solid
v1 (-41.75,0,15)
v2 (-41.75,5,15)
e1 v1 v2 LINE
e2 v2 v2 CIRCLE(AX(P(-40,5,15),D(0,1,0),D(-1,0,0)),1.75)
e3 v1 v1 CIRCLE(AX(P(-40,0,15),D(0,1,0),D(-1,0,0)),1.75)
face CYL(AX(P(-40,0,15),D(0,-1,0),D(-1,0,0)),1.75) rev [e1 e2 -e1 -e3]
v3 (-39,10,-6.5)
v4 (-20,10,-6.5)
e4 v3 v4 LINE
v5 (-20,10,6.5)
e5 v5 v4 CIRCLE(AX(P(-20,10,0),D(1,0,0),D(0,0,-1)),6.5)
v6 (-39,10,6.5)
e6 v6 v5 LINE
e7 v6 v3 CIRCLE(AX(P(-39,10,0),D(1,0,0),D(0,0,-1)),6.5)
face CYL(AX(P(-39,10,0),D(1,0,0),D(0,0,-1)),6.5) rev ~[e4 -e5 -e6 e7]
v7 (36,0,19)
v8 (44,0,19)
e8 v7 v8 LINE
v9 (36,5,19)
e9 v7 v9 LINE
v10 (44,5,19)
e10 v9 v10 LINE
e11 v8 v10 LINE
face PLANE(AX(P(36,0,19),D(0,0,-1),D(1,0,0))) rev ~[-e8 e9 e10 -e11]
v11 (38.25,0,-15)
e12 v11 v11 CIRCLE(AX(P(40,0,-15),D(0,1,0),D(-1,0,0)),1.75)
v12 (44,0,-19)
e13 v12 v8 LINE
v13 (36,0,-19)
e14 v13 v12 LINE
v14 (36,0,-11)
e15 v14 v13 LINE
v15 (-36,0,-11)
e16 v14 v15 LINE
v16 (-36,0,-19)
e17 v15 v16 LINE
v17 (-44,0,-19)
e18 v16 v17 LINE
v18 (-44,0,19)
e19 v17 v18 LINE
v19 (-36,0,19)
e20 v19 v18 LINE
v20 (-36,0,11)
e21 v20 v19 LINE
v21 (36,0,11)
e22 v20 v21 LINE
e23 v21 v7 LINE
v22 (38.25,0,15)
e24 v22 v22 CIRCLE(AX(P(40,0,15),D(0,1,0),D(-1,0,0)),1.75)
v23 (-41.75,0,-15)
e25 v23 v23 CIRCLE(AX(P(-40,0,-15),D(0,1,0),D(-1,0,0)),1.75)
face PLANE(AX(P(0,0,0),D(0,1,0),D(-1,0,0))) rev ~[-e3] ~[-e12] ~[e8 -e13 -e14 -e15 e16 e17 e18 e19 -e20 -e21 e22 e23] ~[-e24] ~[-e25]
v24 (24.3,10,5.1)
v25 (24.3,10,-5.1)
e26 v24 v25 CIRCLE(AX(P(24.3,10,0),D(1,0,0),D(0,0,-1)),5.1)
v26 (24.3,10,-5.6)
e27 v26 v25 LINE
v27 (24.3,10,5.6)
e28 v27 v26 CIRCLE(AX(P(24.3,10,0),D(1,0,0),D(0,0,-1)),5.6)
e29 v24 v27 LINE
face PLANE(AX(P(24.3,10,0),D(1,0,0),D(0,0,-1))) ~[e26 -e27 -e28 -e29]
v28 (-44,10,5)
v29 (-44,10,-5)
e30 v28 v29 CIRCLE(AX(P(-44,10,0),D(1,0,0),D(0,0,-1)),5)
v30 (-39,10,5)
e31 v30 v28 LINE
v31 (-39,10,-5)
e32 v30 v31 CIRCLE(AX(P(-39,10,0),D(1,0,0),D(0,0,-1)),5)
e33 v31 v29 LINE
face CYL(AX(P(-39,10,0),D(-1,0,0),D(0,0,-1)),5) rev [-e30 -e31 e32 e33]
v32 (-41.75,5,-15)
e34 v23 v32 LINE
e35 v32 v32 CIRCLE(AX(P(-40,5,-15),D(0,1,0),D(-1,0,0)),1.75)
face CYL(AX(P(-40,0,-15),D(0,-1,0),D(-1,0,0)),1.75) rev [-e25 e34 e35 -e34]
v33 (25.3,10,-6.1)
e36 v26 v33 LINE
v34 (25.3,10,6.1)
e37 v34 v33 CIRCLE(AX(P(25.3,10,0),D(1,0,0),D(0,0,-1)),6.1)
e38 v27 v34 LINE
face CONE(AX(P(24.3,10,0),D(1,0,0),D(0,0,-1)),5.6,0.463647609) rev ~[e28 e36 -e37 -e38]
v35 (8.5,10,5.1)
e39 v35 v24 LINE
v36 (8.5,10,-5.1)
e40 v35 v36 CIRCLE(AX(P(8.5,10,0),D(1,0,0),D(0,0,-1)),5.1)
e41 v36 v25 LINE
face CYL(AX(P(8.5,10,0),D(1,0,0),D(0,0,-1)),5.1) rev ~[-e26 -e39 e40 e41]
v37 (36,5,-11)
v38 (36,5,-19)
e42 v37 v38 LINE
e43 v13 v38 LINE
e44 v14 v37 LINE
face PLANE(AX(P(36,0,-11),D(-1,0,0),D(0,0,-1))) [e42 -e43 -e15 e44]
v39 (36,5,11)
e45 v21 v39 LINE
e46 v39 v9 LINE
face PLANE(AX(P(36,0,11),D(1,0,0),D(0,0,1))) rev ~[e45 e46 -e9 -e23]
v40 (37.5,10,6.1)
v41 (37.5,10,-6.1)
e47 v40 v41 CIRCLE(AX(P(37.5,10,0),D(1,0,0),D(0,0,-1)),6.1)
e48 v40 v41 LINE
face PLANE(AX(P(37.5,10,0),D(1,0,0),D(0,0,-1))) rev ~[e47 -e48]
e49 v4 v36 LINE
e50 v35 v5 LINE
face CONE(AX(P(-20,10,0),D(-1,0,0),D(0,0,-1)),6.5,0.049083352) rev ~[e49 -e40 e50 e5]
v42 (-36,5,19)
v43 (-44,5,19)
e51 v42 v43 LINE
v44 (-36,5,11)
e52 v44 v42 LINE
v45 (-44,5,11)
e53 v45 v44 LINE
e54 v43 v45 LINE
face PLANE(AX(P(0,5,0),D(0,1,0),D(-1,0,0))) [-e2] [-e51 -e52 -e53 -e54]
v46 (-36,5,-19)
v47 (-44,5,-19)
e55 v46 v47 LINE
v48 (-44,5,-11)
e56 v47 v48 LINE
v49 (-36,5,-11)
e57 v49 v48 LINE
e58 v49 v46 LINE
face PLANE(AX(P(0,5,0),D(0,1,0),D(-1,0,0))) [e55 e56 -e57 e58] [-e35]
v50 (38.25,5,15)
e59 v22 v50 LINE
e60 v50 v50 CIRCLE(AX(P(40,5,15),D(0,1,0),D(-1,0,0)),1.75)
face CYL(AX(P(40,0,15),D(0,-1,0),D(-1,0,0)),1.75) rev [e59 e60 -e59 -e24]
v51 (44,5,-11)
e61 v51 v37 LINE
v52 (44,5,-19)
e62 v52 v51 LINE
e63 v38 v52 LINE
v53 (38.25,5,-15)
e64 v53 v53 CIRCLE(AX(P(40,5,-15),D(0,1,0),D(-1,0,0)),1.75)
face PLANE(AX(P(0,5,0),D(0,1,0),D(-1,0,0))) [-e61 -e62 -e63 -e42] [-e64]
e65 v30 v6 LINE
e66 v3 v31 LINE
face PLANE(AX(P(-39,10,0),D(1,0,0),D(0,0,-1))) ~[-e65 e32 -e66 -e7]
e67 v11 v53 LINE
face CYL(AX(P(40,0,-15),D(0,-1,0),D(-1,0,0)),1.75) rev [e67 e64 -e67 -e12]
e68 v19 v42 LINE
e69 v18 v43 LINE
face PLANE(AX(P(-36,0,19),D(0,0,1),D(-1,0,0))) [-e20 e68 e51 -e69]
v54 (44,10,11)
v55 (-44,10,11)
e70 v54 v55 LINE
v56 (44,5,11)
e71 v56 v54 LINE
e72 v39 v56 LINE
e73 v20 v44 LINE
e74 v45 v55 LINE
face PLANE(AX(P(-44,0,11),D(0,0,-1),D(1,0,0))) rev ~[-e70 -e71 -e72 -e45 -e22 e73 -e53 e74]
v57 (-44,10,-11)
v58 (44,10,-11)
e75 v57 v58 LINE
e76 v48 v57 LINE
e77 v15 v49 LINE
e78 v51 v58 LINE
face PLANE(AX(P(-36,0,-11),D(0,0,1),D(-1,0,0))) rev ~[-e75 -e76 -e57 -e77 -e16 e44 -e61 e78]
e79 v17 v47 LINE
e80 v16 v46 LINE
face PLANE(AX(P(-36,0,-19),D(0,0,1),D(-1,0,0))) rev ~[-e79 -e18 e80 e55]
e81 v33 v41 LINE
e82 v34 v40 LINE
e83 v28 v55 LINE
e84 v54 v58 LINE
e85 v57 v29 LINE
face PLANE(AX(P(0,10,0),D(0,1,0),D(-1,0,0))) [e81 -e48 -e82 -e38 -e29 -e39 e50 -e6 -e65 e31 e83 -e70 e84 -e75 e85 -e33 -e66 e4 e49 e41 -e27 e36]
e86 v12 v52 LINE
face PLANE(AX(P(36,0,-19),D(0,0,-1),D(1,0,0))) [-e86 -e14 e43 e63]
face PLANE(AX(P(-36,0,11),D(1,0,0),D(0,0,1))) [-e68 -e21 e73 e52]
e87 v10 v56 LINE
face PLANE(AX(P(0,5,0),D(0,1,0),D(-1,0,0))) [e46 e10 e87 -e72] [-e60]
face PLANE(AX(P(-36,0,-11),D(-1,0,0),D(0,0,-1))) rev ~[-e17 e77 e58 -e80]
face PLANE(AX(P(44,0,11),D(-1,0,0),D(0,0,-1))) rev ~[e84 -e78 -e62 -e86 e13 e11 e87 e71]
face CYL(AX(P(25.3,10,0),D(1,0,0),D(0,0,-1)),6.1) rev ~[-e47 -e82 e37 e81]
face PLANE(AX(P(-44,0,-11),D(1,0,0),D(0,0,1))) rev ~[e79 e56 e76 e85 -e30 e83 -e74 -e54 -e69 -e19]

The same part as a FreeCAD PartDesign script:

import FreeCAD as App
import Part
import Sketcher

doc = App.newDocument("Part")
body = doc.addObject("PartDesign::Body", "Body")

# Sketch on XZ plane
sketch1 = body.newObject("Sketcher::SketchObject", "Sketch")
sketch1.AttachmentSupport = (doc.getObject("XZ_Plane"), [""])
sketch1.MapMode = "FlatFace"
sketch1.addGeometry(Part.LineSegment(App.Vector(-44, -11, 0), App.Vector(-44, 11, 0)), False)
sketch1.addGeometry(Part.LineSegment(App.Vector(-44, 11, 0), App.Vector(44, 11, 0)), False)
sketch1.addGeometry(Part.LineSegment(App.Vector(44, 11, 0), App.Vector(44, -11, 0)), False)
sketch1.addGeometry(Part.LineSegment(App.Vector(44, -11, 0), App.Vector(-44, -11, 0)), False)
sketch1.addConstraint(Sketcher.Constraint("Coincident", 0, 2, 1, 1))
sketch1.addConstraint(Sketcher.Constraint("Coincident", 1, 2, 2, 1))
sketch1.addConstraint(Sketcher.Constraint("Coincident", 2, 2, 3, 1))
sketch1.addConstraint(Sketcher.Constraint("Coincident", 3, 2, 0, 1))
sketch1.addConstraint(Sketcher.Constraint("Vertical", 0))
sketch1.addConstraint(Sketcher.Constraint("Horizontal", 1))
sketch1.addConstraint(Sketcher.Constraint("Vertical", 2))
sketch1.addConstraint(Sketcher.Constraint("Horizontal", 3))
sketch1.addConstraint(Sketcher.Constraint("Symmetric", 0, 2, 2, 2, -1, 1))
sketch1.addConstraint(Sketcher.Constraint("DistanceX", 1, 1, 1, 2, 88.0))
sketch1.addConstraint(Sketcher.Constraint("DistanceY", 0, 1, 0, 2, 22.0))
pad1 = body.newObject("PartDesign::Pad", "Pad")
pad1.Profile = sketch1
pad1.Length = 10
pad1.Reversed = True

# Sketch on XZ plane
sketch2 = body.newObject("Sketcher::SketchObject", "Sketch001")
sketch2.AttachmentSupport = (doc.getObject("XZ_Plane"), [""])
sketch2.MapMode = "FlatFace"
sketch2.addGeometry(Part.LineSegment(App.Vector(-36, 11, 0), App.Vector(-44, 11, 0)), False)
sketch2.addGeometry(Part.LineSegment(App.Vector(-44, 11, 0), App.Vector(-44, 19, 0)), False)
sketch2.addGeometry(Part.LineSegment(App.Vector(-44, 19, 0), App.Vector(-36, 19, 0)), False)
sketch2.addGeometry(Part.LineSegment(App.Vector(-36, 19, 0), App.Vector(-36, 11, 0)), False)
sketch2.addGeometry(Part.Circle(App.Vector(-40, 15, 0), App.Vector(0, 0, 1), 1.8), False)
sketch2.addGeometry(Part.LineSegment(App.Vector(-44, -19, 0), App.Vector(-44, -11, 0)), False)
sketch2.addGeometry(Part.LineSegment(App.Vector(-44, -11, 0), App.Vector(-36, -11, 0)), False)
sketch2.addGeometry(Part.LineSegment(App.Vector(-36, -11, 0), App.Vector(-36, -19, 0)), False)
sketch2.addGeometry(Part.LineSegment(App.Vector(-36, -19, 0), App.Vector(-44, -19, 0)), False)
sketch2.addGeometry(Part.Circle(App.Vector(-40, -15, 0), App.Vector(0, 0, 1), 1.8), False)
sketch2.addGeometry(Part.LineSegment(App.Vector(44, 11, 0), App.Vector(36, 11, 0)), False)
sketch2.addGeometry(Part.LineSegment(App.Vector(36, 11, 0), App.Vector(36, 19, 0)), False)
sketch2.addGeometry(Part.LineSegment(App.Vector(36, 19, 0), App.Vector(44, 19, 0)), False)
sketch2.addGeometry(Part.LineSegment(App.Vector(44, 19, 0), App.Vector(44, 11, 0)), False)
sketch2.addGeometry(Part.Circle(App.Vector(40, 15, 0), App.Vector(0, 0, 1), 1.8), False)
sketch2.addGeometry(Part.LineSegment(App.Vector(36, -19, 0), App.Vector(36, -11, 0)), False)
sketch2.addGeometry(Part.LineSegment(App.Vector(36, -11, 0), App.Vector(44, -11, 0)), False)
sketch2.addGeometry(Part.LineSegment(App.Vector(44, -11, 0), App.Vector(44, -19, 0)), False)
sketch2.addGeometry(Part.LineSegment(App.Vector(44, -19, 0), App.Vector(36, -19, 0)), False)
sketch2.addGeometry(Part.Circle(App.Vector(40, -15, 0), App.Vector(0, 0, 1), 1.8), False)
sketch2.addConstraint(Sketcher.Constraint("Coincident", 0, 2, 1, 1))
sketch2.addConstraint(Sketcher.Constraint("Coincident", 1, 2, 2, 1))
sketch2.addConstraint(Sketcher.Constraint("Coincident", 2, 2, 3, 1))
sketch2.addConstraint(Sketcher.Constraint("Coincident", 3, 2, 0, 1))
sketch2.addConstraint(Sketcher.Constraint("Coincident", 5, 2, 6, 1))
sketch2.addConstraint(Sketcher.Constraint("Coincident", 6, 2, 7, 1))
sketch2.addConstraint(Sketcher.Constraint("Coincident", 7, 2, 8, 1))
sketch2.addConstraint(Sketcher.Constraint("Coincident", 8, 2, 5, 1))
sketch2.addConstraint(Sketcher.Constraint("Coincident", 10, 2, 11, 1))
sketch2.addConstraint(Sketcher.Constraint("Coincident", 11, 2, 12, 1))
sketch2.addConstraint(Sketcher.Constraint("Coincident", 12, 2, 13, 1))
sketch2.addConstraint(Sketcher.Constraint("Coincident", 13, 2, 10, 1))
sketch2.addConstraint(Sketcher.Constraint("Coincident", 15, 2, 16, 1))
sketch2.addConstraint(Sketcher.Constraint("Coincident", 16, 2, 17, 1))
sketch2.addConstraint(Sketcher.Constraint("Coincident", 17, 2, 18, 1))
sketch2.addConstraint(Sketcher.Constraint("Coincident", 18, 2, 15, 1))
sketch2.addConstraint(Sketcher.Constraint("Horizontal", 0))
sketch2.addConstraint(Sketcher.Constraint("Vertical", 1))
sketch2.addConstraint(Sketcher.Constraint("Horizontal", 2))
sketch2.addConstraint(Sketcher.Constraint("Vertical", 3))
sketch2.addConstraint(Sketcher.Constraint("Vertical", 5))
sketch2.addConstraint(Sketcher.Constraint("Horizontal", 6))
sketch2.addConstraint(Sketcher.Constraint("Vertical", 7))
sketch2.addConstraint(Sketcher.Constraint("Horizontal", 8))
sketch2.addConstraint(Sketcher.Constraint("Horizontal", 10))
sketch2.addConstraint(Sketcher.Constraint("Vertical", 11))
sketch2.addConstraint(Sketcher.Constraint("Horizontal", 12))
sketch2.addConstraint(Sketcher.Constraint("Vertical", 13))
sketch2.addConstraint(Sketcher.Constraint("Vertical", 15))
sketch2.addConstraint(Sketcher.Constraint("Horizontal", 16))
sketch2.addConstraint(Sketcher.Constraint("Vertical", 17))
sketch2.addConstraint(Sketcher.Constraint("Horizontal", 18))
sketch2.addConstraint(Sketcher.Constraint("Equal", 4, 9))
sketch2.addConstraint(Sketcher.Constraint("Equal", 9, 14))
sketch2.addConstraint(Sketcher.Constraint("Equal", 14, 19))
sketch2.addConstraint(Sketcher.Constraint("Symmetric", 9, 3, 14, 3, -1, 1))
sketch2.addConstraint(Sketcher.Constraint("Symmetric", 4, 3, 19, 3, -1, 1))
sketch2.addConstraint(Sketcher.Constraint("Symmetric", 6, 2, 10, 2, -1, 1))
sketch2.addConstraint(Sketcher.Constraint("Symmetric", 8, 2, 12, 2, -1, 1))
sketch2.addConstraint(Sketcher.Constraint("Symmetric", 3, 2, 15, 2, -1, 1))
sketch2.addConstraint(Sketcher.Constraint("Symmetric", 1, 2, 17, 2, -1, 1))
sketch2.addConstraint(Sketcher.Constraint("Symmetric", 4, 3, 14, 3, -2))
sketch2.addConstraint(Sketcher.Constraint("Symmetric", 3, 2, 10, 2, -2))
sketch2.addConstraint(Sketcher.Constraint("Symmetric", 1, 2, 12, 2, -2))
sketch2.addConstraint(Sketcher.Constraint("Equal", 18, 1))
sketch2.addConstraint(Sketcher.Constraint("Diameter", 4, 3.5))
sketch2.addConstraint(Sketcher.Constraint("DistanceX", 0, 2, 0, 1, 8.0))
sketch2.addConstraint(Sketcher.Constraint("DistanceY", 9, 3, 4, 3, 30.0))
sketch2.addConstraint(Sketcher.Constraint("DistanceX", 4, 3, 14, 3, 80.0))
sketch2.addConstraint(Sketcher.Constraint("DistanceY", 5, 2, 0, 2, 22.0))
sketch2.addConstraint(Sketcher.Constraint("DistanceX", 2, 2, 12, 2, 80.0))
pad2 = body.newObject("PartDesign::Pad", "Pad001")
pad2.Profile = sketch2
pad2.Length = 5
pad2.Reversed = True

# Sketch on XZ plane
sketch3 = body.newObject("Sketcher::SketchObject", "Sketch002")
sketch3.AttachmentSupport = (doc.getObject("XZ_Plane"), [""])
sketch3.MapMode = "FlatFace"
sketch3.AttachmentOffset = App.Placement(App.Vector(0, 0, -10), App.Rotation())
sketch3.addGeometry(Part.LineSegment(App.Vector(-44, -5, 0), App.Vector(-44, 0, 0)), False)
sketch3.addGeometry(Part.LineSegment(App.Vector(-44, 0, 0), App.Vector(37.5, 0, 0)), False)
sketch3.addGeometry(Part.LineSegment(App.Vector(37.5, 0, 0), App.Vector(37.5, -6.1, 0)), False)
sketch3.addGeometry(Part.LineSegment(App.Vector(37.5, -6.1, 0), App.Vector(25.3, -6.1, 0)), False)
sketch3.addGeometry(Part.LineSegment(App.Vector(25.3, -6.1, 0), App.Vector(24.3, -5.6, 0)), False)
sketch3.addGeometry(Part.LineSegment(App.Vector(24.3, -5.6, 0), App.Vector(24.3, -5.1, 0)), False)
sketch3.addGeometry(Part.LineSegment(App.Vector(24.3, -5.1, 0), App.Vector(8.5, -5.1, 0)), False)
sketch3.addGeometry(Part.LineSegment(App.Vector(8.5, -5.1, 0), App.Vector(-20, -6.5, 0)), False)
sketch3.addGeometry(Part.LineSegment(App.Vector(-20, -6.5, 0), App.Vector(-39, -6.5, 0)), False)
sketch3.addGeometry(Part.LineSegment(App.Vector(-39, -6.5, 0), App.Vector(-39, -5, 0)), False)
sketch3.addGeometry(Part.LineSegment(App.Vector(-39, -5, 0), App.Vector(-44, -5, 0)), False)
sketch3.addConstraint(Sketcher.Constraint("Coincident", 0, 2, 1, 1))
sketch3.addConstraint(Sketcher.Constraint("Coincident", 1, 2, 2, 1))
sketch3.addConstraint(Sketcher.Constraint("Coincident", 2, 2, 3, 1))
sketch3.addConstraint(Sketcher.Constraint("Coincident", 3, 2, 4, 1))
sketch3.addConstraint(Sketcher.Constraint("Coincident", 4, 2, 5, 1))
sketch3.addConstraint(Sketcher.Constraint("Coincident", 5, 2, 6, 1))
sketch3.addConstraint(Sketcher.Constraint("Coincident", 6, 2, 7, 1))
sketch3.addConstraint(Sketcher.Constraint("Coincident", 7, 2, 8, 1))
sketch3.addConstraint(Sketcher.Constraint("Coincident", 8, 2, 9, 1))
sketch3.addConstraint(Sketcher.Constraint("Coincident", 9, 2, 10, 1))
sketch3.addConstraint(Sketcher.Constraint("Coincident", 10, 2, 0, 1))
sketch3.addConstraint(Sketcher.Constraint("Vertical", 0))
sketch3.addConstraint(Sketcher.Constraint("Horizontal", 1))
sketch3.addConstraint(Sketcher.Constraint("Vertical", 2))
sketch3.addConstraint(Sketcher.Constraint("Horizontal", 3))
sketch3.addConstraint(Sketcher.Constraint("Vertical", 5))
sketch3.addConstraint(Sketcher.Constraint("Horizontal", 6))
sketch3.addConstraint(Sketcher.Constraint("Horizontal", 8))
sketch3.addConstraint(Sketcher.Constraint("Vertical", 9))
sketch3.addConstraint(Sketcher.Constraint("Horizontal", 10))
sketch3.addConstraint(Sketcher.Constraint("PointOnObject", 0, 2, -1))
sketch3.addConstraint(Sketcher.Constraint("Equal", 10, 0))
sketch3.addConstraint(Sketcher.Constraint("DistanceX", 8, 2, 8, 1, 19.0))
sketch3.addConstraint(Sketcher.Constraint("DistanceX", 10, 2, 10, 1, 5.0))
sketch3.addConstraint(Sketcher.Constraint("DistanceX", 3, 2, 3, 1, 12.2))
sketch3.addConstraint(Sketcher.Constraint("DistanceY", 5, 1, 5, 2, 0.5))
sketch3.addConstraint(Sketcher.Constraint("DistanceX", 4, 2, 3, 2, 1.0))
sketch3.addConstraint(Sketcher.Constraint("DistanceY", 3, 2, 5, 2, 1.0))
sketch3.addConstraint(Sketcher.Constraint("DistanceX", 6, 2, 2, 2, 29.0))
sketch3.addConstraint(Sketcher.Constraint("DistanceX", 1, 1, 1, 2, 81.5))
sketch3.addConstraint(Sketcher.Constraint("DistanceY", 2, 2, 2, 1, 6.1))
sketch3.addConstraint(Sketcher.Constraint("DistanceY", 9, 1, 9, 2, 1.5))
sketch3.addConstraint(Sketcher.Constraint("DistanceX", 0, 2, -1, 1, 44.0))
groove = body.newObject("PartDesign::Groove", "Groove")
groove.Profile = sketch3
groove.ReferenceAxis = (sketch3, ["H_Axis"])
groove.Angle = 360

doc.recompute()
